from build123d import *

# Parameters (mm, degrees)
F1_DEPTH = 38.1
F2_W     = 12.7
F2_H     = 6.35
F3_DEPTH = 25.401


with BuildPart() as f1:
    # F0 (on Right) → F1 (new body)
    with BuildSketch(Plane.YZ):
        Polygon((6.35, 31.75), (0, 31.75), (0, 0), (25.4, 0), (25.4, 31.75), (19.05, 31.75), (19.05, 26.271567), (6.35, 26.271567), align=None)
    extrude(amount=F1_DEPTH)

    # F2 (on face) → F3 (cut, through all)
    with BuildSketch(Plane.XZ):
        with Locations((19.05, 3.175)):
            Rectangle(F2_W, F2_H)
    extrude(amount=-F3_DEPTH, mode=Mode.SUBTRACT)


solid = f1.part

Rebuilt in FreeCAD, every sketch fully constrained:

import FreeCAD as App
import Part
import Sketcher
Q = App.Units.Quantity

doc = App.newDocument("Part")
body = doc.addObject("PartDesign::Body", "Body")

sketch1 = body.newObject("Sketcher::SketchObject", "Sketch")
sketch1.AttachmentSupport = (doc.getObject("YZ_Plane"), [""])
sketch1.MapMode = "FlatFace"
sketch1.addGeometry([
    Part.LineSegment(App.Vector(6, 32, 0), App.Vector(0, 32, 0)),
    Part.LineSegment(App.Vector(0, 32, 0), App.Vector(0, 0, 0)),
    Part.LineSegment(App.Vector(0, 0, 0), App.Vector(25, 0, 0)),
    Part.LineSegment(App.Vector(25, 0, 0), App.Vector(25, 32, 0)),
    Part.LineSegment(App.Vector(25, 32, 0), App.Vector(19, 32, 0)),
    Part.LineSegment(App.Vector(19, 32, 0), App.Vector(19, 26, 0)),
    Part.LineSegment(App.Vector(19, 26, 0), App.Vector(6, 26, 0)),
    Part.LineSegment(App.Vector(6, 26, 0), App.Vector(6, 32, 0)),
], False)
sketch1.addConstraint([
    Sketcher.Constraint("Coincident", 0, 2, 1, 1),
    Sketcher.Constraint("Coincident", 1, 2, 2, 1),
    Sketcher.Constraint("Coincident", 2, 2, 3, 1),
    Sketcher.Constraint("Coincident", 3, 2, 4, 1),
    Sketcher.Constraint("Coincident", 4, 2, 5, 1),
    Sketcher.Constraint("Coincident", 5, 2, 6, 1),
    Sketcher.Constraint("Coincident", 6, 2, 7, 1),
    Sketcher.Constraint("Coincident", 7, 2, 0, 1),
    Sketcher.Constraint("Horizontal", 0),
    Sketcher.Constraint("Vertical", 1),
    Sketcher.Constraint("Horizontal", 2),
    Sketcher.Constraint("Vertical", 3),
    Sketcher.Constraint("Horizontal", 4),
    Sketcher.Constraint("Vertical", 5),
    Sketcher.Constraint("Horizontal", 6),
    Sketcher.Constraint("Vertical", 7),
    Sketcher.Constraint("Coincident", 1, 2, -1, 1),
    Sketcher.Constraint("Horizontal", 0, 2, 3, 2),
    Sketcher.Constraint("Equal", 0, 4),
    Sketcher.Constraint("DistanceX", 2, 1, 2, 2, Q("1 in")),
    Sketcher.Constraint("DistanceX", 6, 2, 6, 1, Q("0.5 in")),
    Sketcher.Constraint("DistanceY", 1, 2, 1, 1, Q("1.25 in")),
    Sketcher.Constraint("DistanceY", 5, 2, 5, 1, 5.478433),
])
pad1 = body.newObject("PartDesign::Pad", "Pad")
pad1.Profile = sketch1
pad1.Length = Q("1.5 in")

sketch2 = body.newObject("Sketcher::SketchObject", "Sketch001")
sketch2.AttachmentSupport = (doc.getObject("XZ_Plane"), [""])
sketch2.MapMode = "FlatFace"
sketch2.addGeometry([
    Part.LineSegment(App.Vector(13, 6, 0), App.Vector(13, 0, 0)),
    Part.LineSegment(App.Vector(13, 0, 0), App.Vector(25, 0, 0)),
    Part.LineSegment(App.Vector(25, 0, 0), App.Vector(25, 6, 0)),
    Part.LineSegment(App.Vector(25, 6, 0), App.Vector(13, 6, 0)),
], False)
sketch2.addConstraint([
    Sketcher.Constraint("Coincident", 0, 2, 1, 1),
    Sketcher.Constraint("Coincident", 1, 2, 2, 1),
    Sketcher.Constraint("Coincident", 2, 2, 3, 1),
    Sketcher.Constraint("Coincident", 3, 2, 0, 1),
    Sketcher.Constraint("Vertical", 0),
    Sketcher.Constraint("Horizontal", 1),
    Sketcher.Constraint("Vertical", 2),
    Sketcher.Constraint("Horizontal", 3),
    Sketcher.Constraint("PointOnObject", 0, 2, -1),
    Sketcher.Constraint("DistanceX", 1, 1, 1, 2, Q("0.5 in")),
    Sketcher.Constraint("DistanceX", -1, 1, 1, 2, Q("1 in")),
    Sketcher.Constraint("DistanceY", 0, 2, 0, 1, Q("0.25 in")),
])
pocket1 = body.newObject("PartDesign::Pocket", "Pocket")
pocket1.Profile = sketch2
pocket1.Type = "ThroughAll"

doc.recompute()
